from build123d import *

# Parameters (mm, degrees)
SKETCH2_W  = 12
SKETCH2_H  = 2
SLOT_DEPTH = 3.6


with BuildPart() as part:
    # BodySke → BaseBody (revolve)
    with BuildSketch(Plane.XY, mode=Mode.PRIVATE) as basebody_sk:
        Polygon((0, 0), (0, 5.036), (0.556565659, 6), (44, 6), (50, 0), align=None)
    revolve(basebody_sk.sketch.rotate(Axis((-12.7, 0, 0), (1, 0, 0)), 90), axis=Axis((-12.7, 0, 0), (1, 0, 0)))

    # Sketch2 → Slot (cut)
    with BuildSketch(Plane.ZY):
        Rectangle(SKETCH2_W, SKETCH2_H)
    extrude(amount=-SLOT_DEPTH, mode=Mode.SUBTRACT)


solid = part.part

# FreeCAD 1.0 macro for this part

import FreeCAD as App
import Part
import Sketcher

V = App.Vector
Q = App.Units.Quantity


def add_polygon(sketch, points):
    """Adds a closed chain of lines whose ends are joined by coincident constraints."""
    first, n = sketch.GeometryCount, len(points)
    for a, b in zip(points, points[1:] + points[:1]):
        sketch.addGeometry(Part.LineSegment(App.Vector(*a, 0), App.Vector(*b, 0)), False)
    for i in range(n):
        sketch.addConstraint(Sketcher.Constraint("Coincident", first + i, 2, first + (i + 1) % n, 1))

doc = App.newDocument("Part")
body = doc.addObject("PartDesign::Body", "Body")

# Sketch on XY plane
sketch1 = body.newObject("Sketcher::SketchObject", "Sketch")
sketch1.AttachmentSupport = (doc.getObject("XY_Plane"), [""])
sketch1.MapMode = "FlatFace"
add_polygon(sketch1, [(0, 5), (0, 0), (50, 0), (44, 6), (0.6, 6)])  # lines 0-4
sketch1.addConstraint([
    Sketcher.Constraint("Vertical", 0),
    Sketcher.Constraint("Horizontal", 1),
    Sketcher.Constraint("Horizontal", 3),
    Sketcher.Constraint("Coincident", 0, 2, -1, 1),
    Sketcher.Constraint("DistanceX", 1, 1, 1, 2, Q("50 mm")),
    Sketcher.Constraint("Angle", 2, Q("135 deg")),
    Sketcher.Constraint("Angle", 4, Q("-120 deg")),
    Sketcher.Constraint("DistanceX", -1, 1, 2, 2, Q("44 mm")),
    Sketcher.Constraint("DistanceY", 0, 2, 0, 1, Q("5.036 mm")),
])
revolution = body.newObject("PartDesign::Revolution", "Revolution")
revolution.Profile = sketch1
revolution.ReferenceAxis = (sketch1, ["H_Axis"])
revolution.Angle = 360

# Sketch on YZ plane
sketch2 = body.newObject("Sketcher::SketchObject", "Sketch001")
sketch2.AttachmentSupport = (doc.getObject("YZ_Plane"), [""])
sketch2.MapMode = "FlatFace"
add_polygon(sketch2, [(1, -6), (-1, -6), (-1, 6), (1, 6)])  # lines 0-3
sketch2.addConstraint([
    Sketcher.Constraint("Horizontal", 0),
    Sketcher.Constraint("Vertical", 1),
    Sketcher.Constraint("Horizontal", 2),
    Sketcher.Constraint("Vertical", 3),
    Sketcher.Constraint("Symmetric", 0, 2, 2, 2, -1, 1),
    Sketcher.Constraint("DistanceX", 0, 2, 0, 1, Q("2 mm")),
    Sketcher.Constraint("DistanceY", 1, 1, 1, 2, Q("12 mm")),
])
pocket1 = body.newObject("PartDesign::Pocket", "Pocket")
pocket1.Profile = sketch2
pocket1.Length = 3.6
pocket1.Reversed = True

doc.recompute()
